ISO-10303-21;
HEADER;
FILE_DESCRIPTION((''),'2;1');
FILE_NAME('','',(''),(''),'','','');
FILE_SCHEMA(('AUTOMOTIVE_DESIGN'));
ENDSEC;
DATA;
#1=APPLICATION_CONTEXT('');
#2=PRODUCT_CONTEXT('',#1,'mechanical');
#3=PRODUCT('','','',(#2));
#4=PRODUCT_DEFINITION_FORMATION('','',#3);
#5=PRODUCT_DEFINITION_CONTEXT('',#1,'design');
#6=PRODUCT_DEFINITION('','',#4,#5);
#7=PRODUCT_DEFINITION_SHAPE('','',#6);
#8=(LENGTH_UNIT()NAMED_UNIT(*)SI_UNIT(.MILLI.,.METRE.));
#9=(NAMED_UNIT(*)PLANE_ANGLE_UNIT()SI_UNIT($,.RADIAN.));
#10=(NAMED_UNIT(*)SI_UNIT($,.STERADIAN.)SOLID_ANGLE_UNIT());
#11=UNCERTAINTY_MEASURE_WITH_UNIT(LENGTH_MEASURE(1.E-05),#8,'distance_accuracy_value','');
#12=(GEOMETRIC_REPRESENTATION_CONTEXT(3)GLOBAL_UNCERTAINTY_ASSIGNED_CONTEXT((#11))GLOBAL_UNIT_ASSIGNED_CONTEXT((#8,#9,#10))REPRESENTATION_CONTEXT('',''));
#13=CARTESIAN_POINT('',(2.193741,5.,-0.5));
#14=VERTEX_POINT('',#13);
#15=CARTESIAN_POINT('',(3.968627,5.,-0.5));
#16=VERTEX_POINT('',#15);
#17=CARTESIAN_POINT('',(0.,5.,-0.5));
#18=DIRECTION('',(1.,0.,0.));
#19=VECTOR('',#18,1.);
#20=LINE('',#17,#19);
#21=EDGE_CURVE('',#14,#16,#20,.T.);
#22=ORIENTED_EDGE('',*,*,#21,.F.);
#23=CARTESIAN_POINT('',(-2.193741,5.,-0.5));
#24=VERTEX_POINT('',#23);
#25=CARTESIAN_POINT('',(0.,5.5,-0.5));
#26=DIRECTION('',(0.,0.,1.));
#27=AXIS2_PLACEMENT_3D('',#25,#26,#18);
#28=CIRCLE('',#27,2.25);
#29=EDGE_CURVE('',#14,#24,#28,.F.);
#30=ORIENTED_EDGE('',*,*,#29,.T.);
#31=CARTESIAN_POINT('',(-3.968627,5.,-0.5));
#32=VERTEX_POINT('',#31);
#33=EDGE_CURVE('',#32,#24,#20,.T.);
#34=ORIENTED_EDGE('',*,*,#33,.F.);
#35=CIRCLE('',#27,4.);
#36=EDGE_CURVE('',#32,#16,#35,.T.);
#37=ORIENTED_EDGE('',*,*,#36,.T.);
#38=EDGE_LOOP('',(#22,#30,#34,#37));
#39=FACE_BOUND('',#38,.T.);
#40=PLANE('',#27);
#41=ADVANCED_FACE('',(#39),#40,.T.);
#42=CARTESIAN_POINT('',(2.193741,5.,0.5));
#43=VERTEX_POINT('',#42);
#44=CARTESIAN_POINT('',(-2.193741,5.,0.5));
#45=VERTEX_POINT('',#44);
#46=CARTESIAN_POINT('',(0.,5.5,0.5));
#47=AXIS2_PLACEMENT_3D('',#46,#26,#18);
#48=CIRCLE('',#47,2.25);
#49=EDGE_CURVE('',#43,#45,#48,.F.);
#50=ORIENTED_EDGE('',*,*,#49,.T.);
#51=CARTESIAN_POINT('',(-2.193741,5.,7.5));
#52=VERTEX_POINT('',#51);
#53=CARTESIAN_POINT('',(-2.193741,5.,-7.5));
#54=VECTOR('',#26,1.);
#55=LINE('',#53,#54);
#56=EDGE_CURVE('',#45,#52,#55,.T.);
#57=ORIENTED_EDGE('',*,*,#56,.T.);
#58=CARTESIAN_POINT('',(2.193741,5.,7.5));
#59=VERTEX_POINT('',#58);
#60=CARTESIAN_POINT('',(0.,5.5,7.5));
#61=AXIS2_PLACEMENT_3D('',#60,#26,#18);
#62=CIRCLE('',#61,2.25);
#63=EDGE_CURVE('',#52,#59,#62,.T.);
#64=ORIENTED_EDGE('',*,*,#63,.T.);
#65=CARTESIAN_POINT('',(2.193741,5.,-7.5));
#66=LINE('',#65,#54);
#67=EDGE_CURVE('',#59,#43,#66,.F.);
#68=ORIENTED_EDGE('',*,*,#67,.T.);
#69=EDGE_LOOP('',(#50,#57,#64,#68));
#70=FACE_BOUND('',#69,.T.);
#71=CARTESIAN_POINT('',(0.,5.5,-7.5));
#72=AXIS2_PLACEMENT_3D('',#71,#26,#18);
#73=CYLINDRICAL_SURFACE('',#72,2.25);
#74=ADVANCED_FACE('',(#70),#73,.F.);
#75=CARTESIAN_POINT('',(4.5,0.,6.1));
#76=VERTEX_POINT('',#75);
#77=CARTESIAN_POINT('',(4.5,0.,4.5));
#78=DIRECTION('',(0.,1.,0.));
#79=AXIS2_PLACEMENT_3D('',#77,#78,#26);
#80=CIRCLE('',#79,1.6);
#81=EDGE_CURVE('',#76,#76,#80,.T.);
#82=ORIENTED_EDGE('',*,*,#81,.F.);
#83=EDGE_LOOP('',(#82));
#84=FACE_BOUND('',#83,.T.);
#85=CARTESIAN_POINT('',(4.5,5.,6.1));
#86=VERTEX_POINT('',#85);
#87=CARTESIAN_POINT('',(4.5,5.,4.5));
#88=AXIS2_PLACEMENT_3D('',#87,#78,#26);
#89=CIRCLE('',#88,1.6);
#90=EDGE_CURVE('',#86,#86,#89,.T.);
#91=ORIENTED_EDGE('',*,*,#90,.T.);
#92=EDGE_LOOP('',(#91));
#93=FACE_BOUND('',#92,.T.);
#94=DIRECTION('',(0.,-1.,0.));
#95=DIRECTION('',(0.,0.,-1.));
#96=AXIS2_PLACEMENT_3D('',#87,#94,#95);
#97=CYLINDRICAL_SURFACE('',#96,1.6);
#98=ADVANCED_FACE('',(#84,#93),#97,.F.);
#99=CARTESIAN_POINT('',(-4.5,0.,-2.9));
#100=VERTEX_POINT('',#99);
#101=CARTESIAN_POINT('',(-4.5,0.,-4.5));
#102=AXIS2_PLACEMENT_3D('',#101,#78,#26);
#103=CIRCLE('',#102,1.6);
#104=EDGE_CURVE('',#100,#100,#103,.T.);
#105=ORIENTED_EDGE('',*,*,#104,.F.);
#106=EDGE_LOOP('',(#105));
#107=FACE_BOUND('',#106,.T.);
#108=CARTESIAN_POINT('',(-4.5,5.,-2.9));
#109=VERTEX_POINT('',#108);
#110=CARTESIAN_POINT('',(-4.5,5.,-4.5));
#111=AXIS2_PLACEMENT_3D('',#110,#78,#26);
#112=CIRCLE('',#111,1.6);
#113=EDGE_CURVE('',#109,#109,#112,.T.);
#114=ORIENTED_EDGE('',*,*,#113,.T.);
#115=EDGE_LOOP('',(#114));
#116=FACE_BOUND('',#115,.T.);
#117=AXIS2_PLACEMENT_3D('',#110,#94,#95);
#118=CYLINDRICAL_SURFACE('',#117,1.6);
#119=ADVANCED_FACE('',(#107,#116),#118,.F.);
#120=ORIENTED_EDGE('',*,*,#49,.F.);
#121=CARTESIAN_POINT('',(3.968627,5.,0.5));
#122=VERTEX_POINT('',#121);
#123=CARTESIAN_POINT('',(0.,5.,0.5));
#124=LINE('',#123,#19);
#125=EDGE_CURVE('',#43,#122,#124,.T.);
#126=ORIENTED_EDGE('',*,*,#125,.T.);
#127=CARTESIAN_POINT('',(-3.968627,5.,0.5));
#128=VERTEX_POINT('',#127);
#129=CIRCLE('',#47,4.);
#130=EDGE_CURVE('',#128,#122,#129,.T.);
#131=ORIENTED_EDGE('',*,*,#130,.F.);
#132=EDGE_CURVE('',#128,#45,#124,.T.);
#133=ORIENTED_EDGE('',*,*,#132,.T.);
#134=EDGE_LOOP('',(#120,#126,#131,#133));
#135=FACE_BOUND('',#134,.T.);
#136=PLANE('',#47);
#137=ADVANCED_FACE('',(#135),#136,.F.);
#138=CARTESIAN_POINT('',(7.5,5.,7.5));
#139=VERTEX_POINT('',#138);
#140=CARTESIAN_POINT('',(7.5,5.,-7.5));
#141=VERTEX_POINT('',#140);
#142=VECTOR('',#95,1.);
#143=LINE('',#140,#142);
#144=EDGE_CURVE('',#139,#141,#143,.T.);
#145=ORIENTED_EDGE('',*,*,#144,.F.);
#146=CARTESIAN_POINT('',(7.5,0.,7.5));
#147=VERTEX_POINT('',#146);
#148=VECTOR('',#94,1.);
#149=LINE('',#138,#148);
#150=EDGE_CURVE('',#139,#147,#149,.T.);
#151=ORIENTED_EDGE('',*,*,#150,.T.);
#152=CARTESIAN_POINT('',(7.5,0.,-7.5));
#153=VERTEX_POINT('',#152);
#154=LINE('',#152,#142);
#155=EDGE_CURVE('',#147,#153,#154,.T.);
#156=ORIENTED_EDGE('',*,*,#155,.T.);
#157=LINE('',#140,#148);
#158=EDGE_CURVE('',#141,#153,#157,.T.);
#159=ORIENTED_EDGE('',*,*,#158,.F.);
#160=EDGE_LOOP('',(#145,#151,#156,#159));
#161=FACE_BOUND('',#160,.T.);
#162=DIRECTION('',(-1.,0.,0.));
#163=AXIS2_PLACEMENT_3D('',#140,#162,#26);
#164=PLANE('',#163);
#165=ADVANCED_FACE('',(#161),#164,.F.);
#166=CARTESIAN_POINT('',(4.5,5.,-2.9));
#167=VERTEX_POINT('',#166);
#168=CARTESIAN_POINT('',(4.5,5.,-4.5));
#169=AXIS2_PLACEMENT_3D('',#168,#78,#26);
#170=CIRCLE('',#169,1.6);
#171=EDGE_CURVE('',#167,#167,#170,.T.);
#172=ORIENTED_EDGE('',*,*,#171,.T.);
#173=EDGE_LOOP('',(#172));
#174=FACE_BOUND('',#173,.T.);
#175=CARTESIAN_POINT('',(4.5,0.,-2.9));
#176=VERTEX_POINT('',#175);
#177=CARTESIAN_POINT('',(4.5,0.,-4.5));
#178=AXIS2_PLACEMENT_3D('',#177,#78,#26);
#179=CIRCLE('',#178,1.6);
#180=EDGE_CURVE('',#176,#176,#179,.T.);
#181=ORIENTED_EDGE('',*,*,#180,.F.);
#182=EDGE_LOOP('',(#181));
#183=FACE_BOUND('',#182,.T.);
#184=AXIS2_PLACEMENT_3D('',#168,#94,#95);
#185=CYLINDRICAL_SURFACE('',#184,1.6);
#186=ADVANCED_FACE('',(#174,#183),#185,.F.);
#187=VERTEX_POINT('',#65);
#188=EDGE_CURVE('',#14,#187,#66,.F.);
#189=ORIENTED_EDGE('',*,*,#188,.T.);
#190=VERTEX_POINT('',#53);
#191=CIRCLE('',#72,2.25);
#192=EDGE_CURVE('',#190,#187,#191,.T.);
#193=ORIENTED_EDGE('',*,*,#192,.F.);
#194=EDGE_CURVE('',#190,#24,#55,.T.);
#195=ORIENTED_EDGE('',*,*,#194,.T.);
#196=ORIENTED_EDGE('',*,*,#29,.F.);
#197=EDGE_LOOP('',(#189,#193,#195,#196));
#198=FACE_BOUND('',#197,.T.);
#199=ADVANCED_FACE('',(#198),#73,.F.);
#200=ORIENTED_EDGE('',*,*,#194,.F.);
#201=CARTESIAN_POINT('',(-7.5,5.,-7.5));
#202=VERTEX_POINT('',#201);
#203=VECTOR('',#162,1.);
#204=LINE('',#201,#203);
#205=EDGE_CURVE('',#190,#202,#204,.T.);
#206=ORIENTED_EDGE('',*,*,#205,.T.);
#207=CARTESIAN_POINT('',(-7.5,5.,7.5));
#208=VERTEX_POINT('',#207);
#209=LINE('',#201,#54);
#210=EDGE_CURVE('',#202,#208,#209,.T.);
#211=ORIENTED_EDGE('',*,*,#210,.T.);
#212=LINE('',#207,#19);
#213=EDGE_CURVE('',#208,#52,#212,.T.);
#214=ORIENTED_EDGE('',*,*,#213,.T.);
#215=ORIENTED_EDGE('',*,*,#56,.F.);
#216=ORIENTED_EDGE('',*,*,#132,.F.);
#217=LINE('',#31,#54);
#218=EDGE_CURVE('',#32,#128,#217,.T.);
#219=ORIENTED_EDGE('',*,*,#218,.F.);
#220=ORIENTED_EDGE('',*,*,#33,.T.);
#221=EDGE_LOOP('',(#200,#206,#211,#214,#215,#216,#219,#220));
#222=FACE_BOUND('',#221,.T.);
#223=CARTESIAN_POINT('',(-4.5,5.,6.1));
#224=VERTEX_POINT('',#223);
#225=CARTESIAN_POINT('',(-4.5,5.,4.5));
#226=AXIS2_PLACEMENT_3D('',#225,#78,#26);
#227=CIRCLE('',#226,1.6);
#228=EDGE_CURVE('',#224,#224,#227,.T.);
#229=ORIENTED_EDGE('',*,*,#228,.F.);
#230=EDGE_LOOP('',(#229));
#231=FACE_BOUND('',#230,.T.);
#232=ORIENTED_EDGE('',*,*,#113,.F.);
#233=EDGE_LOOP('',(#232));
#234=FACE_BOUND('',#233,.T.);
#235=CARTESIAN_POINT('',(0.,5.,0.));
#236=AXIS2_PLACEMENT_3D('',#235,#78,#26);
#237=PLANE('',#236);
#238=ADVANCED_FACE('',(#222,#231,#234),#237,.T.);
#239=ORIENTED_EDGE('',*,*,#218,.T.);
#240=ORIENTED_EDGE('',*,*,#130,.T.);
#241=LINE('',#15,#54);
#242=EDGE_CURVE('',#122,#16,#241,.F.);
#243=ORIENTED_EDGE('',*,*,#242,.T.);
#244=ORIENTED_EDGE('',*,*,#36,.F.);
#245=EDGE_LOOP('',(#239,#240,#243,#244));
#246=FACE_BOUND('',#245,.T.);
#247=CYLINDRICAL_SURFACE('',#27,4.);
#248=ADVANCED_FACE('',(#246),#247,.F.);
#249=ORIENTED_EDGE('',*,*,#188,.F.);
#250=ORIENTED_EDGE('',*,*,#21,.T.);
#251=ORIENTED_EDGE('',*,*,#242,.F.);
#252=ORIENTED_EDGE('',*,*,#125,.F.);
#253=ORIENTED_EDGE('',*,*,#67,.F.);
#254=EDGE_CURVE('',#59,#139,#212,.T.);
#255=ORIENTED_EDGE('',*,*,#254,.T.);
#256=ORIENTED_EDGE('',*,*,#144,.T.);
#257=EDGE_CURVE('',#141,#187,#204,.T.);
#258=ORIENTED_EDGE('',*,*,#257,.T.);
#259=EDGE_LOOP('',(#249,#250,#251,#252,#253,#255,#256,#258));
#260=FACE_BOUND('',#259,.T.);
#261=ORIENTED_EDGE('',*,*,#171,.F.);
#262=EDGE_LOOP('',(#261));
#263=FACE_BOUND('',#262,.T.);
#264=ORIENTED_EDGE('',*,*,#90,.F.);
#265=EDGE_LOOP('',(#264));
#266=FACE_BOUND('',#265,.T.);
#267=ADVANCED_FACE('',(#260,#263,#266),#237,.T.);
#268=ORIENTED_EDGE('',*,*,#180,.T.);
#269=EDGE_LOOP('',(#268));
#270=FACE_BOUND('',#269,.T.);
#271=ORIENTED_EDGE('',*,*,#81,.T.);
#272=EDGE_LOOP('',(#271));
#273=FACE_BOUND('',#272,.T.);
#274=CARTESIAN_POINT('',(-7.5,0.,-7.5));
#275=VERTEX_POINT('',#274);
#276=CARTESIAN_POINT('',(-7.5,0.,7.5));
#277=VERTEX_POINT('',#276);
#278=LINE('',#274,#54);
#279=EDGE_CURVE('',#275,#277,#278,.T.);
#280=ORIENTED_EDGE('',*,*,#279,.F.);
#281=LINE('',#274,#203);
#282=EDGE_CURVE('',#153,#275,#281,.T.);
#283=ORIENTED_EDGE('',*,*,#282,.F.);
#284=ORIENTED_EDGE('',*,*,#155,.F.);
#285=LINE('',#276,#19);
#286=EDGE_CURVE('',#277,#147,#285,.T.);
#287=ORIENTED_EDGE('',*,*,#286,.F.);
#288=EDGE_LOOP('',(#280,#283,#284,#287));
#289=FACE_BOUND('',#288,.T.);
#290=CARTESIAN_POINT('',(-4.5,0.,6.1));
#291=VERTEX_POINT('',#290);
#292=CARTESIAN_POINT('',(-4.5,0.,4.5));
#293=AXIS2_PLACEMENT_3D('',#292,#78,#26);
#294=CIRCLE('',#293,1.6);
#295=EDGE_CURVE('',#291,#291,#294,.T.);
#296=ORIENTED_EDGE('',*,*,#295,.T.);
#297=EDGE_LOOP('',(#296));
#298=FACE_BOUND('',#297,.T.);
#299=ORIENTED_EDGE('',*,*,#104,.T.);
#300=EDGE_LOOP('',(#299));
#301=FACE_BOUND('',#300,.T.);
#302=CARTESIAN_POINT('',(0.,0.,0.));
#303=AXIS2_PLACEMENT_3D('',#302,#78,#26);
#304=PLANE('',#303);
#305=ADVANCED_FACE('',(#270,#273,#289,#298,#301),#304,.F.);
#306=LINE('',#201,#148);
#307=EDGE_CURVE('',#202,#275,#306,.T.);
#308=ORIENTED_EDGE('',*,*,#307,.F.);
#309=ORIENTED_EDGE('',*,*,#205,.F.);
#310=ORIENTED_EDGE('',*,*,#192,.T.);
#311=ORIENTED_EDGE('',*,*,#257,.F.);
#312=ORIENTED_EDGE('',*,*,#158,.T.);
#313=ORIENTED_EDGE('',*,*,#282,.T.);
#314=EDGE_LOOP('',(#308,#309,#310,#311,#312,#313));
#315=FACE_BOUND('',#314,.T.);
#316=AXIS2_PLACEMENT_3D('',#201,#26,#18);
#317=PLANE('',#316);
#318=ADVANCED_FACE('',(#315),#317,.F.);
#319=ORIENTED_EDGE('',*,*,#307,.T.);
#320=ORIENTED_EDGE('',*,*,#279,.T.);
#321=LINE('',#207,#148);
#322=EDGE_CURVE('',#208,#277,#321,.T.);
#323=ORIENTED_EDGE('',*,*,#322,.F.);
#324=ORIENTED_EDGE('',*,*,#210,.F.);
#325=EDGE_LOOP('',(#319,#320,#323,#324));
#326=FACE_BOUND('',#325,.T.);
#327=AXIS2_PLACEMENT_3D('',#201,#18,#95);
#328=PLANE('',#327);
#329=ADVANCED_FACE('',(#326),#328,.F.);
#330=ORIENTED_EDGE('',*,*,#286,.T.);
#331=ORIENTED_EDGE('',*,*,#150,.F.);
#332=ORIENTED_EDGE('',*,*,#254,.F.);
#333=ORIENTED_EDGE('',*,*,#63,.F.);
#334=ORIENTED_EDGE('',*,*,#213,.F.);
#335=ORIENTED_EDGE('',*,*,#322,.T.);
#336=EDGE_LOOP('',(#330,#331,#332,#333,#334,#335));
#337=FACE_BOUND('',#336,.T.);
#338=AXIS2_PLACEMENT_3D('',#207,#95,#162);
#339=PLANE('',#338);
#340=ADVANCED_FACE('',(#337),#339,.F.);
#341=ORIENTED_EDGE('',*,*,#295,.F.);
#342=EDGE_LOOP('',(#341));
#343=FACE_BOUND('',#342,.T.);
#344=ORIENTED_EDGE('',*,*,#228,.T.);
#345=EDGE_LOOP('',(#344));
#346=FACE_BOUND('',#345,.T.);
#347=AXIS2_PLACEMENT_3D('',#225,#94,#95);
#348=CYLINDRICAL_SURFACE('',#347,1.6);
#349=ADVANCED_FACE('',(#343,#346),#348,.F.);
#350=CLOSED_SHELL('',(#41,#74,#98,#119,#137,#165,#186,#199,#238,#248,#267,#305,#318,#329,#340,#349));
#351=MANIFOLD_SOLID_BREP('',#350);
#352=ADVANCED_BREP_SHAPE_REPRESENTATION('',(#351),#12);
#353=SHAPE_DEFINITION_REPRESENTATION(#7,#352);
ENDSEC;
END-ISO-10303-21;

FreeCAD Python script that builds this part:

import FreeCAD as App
import Part
import Sketcher
from FreeCAD import Vector


def add_polygon(sketch, points):
    """Adds a closed chain of lines whose ends are joined by coincident constraints."""
    first, n = sketch.GeometryCount, len(points)
    for a, b in zip(points, points[1:] + points[:1]):
        sketch.addGeometry(Part.LineSegment(App.Vector(*a, 0), App.Vector(*b, 0)), False)
    for i in range(n):
        sketch.addConstraint(Sketcher.Constraint("Coincident", first + i, 2, first + (i + 1) % n, 1))

doc = App.newDocument("Part")
params = doc.addObject("Spreadsheet::Sheet", "Params")
for row, (alias, value) in enumerate([
    ("sketch1_diameter", "3.2 mm"),
    ("sketch1_width", "15 mm"),
    ("pad1_length", "5 mm"),
    ("sketch2_diameter", "4.5 mm"),
    ("sketch3_diameter", "8 mm"),
    ("pocket2_length", "1 mm"),
], start=1):
    params.set(f"A{row}", alias)
    params.set(f"B{row}", "=" + value)
    params.setAlias(f"B{row}", alias)

body = doc.addObject("PartDesign::Body", "Body")

sketch1 = body.newObject("Sketcher::SketchObject", "Sketch")
sketch1.AttachmentSupport = (doc.getObject("XZ_Plane"), [""])
sketch1.MapMode = "FlatFace"
add_polygon(sketch1, [(-7.5, -7.5), (-7.5, 7.5), (7.5, 7.5), (7.5, -7.5)])
sketch1.addGeometry(Part.Circle(Vector(-4.5, 4.5, 0), Vector(0, 0, 1), 1.6), False)
sketch1.addGeometry(Part.Circle(Vector(4.5, 4.5, 0), Vector(0, 0, 1), 1.6), False)
sketch1.addGeometry(Part.Circle(Vector(-4.5, -4.5, 0), Vector(0, 0, 1), 1.6), False)
sketch1.addGeometry(Part.Circle(Vector(4.5, -4.5, 0), Vector(0, 0, 1), 1.6), False)
sketch1.addConstraint([
    Sketcher.Constraint("Vertical", 0),
    Sketcher.Constraint("Horizontal", 1),
    Sketcher.Constraint("Vertical", 2),
    Sketcher.Constraint("Horizontal", 3),
    Sketcher.Constraint("Equal", 4, 5),
    Sketcher.Constraint("Equal", 5, 6),
    Sketcher.Constraint("Equal", 6, 7),
    Sketcher.Constraint("Symmetric", 5, 3, 6, 3, -1, 1),
    Sketcher.Constraint("Symmetric", 4, 3, 7, 3, -1, 1),
    Sketcher.Constraint("Symmetric", 0, 2, 2, 2, -1, 1),
    Sketcher.Constraint("Symmetric", 4, 3, 5, 3, -2),
    Sketcher.Constraint("Equal", 3, 0),
    Sketcher.Constraint("Diameter", 4, 3.2),
    Sketcher.Constraint("DistanceX", 1, 1, 1, 2, 15.0),
    Sketcher.Constraint("DistanceX", 4, 3, 5, 3, 9.0),
    Sketcher.Constraint("DistanceY", 6, 3, 4, 3, 9.0),
])
sketch1.setExpression("Constraints[16]", "Params.sketch1_diameter")
sketch1.setExpression("Constraints[17]", "Params.sketch1_width")
pad1 = body.newObject("PartDesign::Pad", "Pad")
pad1.Profile = sketch1
pad1.setExpression("Length", "Params.pad1_length")
pad1.Reversed = True

sketch2 = body.newObject("Sketcher::SketchObject", "Sketch001")
sketch2.AttachmentSupport = (doc.getObject("XY_Plane"), [""])
sketch2.MapMode = "FlatFace"
sketch2.AttachmentOffset = App.Placement(Vector(0, 0, 7.5), App.Rotation())
sketch2.addGeometry(Part.Circle(Vector(0, 5.5, 0), Vector(0, 0, 1), 2.2), False)
sketch2.addConstraint([
    Sketcher.Constraint("PointOnObject", 0, 3, -2),
    Sketcher.Constraint("Diameter", 0, 4.5),
    Sketcher.Constraint("DistanceY", -1, 1, 0, 3, 5.5),
])
sketch2.setExpression("Constraints[1]", "Params.sketch2_diameter")
pocket1 = body.newObject("PartDesign::Pocket", "Pocket")
pocket1.Profile = sketch2
pocket1.Type = "ThroughAll"

sketch3 = body.newObject("Sketcher::SketchObject", "Sketch002")
sketch3.AttachmentSupport = (doc.getObject("XY_Plane"), [""])
sketch3.MapMode = "FlatFace"
sketch3.AttachmentOffset = App.Placement(Vector(0, 0, 0.5), App.Rotation())
sketch3.addGeometry(Part.Circle(Vector(0, 5.5, 0), Vector(0, 0, 1), 4), False)
sketch3.addConstraint([
    Sketcher.Constraint("PointOnObject", 0, 3, -2),
    Sketcher.Constraint("Diameter", 0, 8.0),
    Sketcher.Constraint("DistanceY", -1, 1, 0, 3, 5.5),
])
sketch3.setExpression("Constraints[1]", "Params.sketch3_diameter")
pocket2 = body.newObject("PartDesign::Pocket", "Pocket001")
pocket2.Profile = sketch3
pocket2.setExpression("Length", "Params.pocket2_length")

doc.recompute()
